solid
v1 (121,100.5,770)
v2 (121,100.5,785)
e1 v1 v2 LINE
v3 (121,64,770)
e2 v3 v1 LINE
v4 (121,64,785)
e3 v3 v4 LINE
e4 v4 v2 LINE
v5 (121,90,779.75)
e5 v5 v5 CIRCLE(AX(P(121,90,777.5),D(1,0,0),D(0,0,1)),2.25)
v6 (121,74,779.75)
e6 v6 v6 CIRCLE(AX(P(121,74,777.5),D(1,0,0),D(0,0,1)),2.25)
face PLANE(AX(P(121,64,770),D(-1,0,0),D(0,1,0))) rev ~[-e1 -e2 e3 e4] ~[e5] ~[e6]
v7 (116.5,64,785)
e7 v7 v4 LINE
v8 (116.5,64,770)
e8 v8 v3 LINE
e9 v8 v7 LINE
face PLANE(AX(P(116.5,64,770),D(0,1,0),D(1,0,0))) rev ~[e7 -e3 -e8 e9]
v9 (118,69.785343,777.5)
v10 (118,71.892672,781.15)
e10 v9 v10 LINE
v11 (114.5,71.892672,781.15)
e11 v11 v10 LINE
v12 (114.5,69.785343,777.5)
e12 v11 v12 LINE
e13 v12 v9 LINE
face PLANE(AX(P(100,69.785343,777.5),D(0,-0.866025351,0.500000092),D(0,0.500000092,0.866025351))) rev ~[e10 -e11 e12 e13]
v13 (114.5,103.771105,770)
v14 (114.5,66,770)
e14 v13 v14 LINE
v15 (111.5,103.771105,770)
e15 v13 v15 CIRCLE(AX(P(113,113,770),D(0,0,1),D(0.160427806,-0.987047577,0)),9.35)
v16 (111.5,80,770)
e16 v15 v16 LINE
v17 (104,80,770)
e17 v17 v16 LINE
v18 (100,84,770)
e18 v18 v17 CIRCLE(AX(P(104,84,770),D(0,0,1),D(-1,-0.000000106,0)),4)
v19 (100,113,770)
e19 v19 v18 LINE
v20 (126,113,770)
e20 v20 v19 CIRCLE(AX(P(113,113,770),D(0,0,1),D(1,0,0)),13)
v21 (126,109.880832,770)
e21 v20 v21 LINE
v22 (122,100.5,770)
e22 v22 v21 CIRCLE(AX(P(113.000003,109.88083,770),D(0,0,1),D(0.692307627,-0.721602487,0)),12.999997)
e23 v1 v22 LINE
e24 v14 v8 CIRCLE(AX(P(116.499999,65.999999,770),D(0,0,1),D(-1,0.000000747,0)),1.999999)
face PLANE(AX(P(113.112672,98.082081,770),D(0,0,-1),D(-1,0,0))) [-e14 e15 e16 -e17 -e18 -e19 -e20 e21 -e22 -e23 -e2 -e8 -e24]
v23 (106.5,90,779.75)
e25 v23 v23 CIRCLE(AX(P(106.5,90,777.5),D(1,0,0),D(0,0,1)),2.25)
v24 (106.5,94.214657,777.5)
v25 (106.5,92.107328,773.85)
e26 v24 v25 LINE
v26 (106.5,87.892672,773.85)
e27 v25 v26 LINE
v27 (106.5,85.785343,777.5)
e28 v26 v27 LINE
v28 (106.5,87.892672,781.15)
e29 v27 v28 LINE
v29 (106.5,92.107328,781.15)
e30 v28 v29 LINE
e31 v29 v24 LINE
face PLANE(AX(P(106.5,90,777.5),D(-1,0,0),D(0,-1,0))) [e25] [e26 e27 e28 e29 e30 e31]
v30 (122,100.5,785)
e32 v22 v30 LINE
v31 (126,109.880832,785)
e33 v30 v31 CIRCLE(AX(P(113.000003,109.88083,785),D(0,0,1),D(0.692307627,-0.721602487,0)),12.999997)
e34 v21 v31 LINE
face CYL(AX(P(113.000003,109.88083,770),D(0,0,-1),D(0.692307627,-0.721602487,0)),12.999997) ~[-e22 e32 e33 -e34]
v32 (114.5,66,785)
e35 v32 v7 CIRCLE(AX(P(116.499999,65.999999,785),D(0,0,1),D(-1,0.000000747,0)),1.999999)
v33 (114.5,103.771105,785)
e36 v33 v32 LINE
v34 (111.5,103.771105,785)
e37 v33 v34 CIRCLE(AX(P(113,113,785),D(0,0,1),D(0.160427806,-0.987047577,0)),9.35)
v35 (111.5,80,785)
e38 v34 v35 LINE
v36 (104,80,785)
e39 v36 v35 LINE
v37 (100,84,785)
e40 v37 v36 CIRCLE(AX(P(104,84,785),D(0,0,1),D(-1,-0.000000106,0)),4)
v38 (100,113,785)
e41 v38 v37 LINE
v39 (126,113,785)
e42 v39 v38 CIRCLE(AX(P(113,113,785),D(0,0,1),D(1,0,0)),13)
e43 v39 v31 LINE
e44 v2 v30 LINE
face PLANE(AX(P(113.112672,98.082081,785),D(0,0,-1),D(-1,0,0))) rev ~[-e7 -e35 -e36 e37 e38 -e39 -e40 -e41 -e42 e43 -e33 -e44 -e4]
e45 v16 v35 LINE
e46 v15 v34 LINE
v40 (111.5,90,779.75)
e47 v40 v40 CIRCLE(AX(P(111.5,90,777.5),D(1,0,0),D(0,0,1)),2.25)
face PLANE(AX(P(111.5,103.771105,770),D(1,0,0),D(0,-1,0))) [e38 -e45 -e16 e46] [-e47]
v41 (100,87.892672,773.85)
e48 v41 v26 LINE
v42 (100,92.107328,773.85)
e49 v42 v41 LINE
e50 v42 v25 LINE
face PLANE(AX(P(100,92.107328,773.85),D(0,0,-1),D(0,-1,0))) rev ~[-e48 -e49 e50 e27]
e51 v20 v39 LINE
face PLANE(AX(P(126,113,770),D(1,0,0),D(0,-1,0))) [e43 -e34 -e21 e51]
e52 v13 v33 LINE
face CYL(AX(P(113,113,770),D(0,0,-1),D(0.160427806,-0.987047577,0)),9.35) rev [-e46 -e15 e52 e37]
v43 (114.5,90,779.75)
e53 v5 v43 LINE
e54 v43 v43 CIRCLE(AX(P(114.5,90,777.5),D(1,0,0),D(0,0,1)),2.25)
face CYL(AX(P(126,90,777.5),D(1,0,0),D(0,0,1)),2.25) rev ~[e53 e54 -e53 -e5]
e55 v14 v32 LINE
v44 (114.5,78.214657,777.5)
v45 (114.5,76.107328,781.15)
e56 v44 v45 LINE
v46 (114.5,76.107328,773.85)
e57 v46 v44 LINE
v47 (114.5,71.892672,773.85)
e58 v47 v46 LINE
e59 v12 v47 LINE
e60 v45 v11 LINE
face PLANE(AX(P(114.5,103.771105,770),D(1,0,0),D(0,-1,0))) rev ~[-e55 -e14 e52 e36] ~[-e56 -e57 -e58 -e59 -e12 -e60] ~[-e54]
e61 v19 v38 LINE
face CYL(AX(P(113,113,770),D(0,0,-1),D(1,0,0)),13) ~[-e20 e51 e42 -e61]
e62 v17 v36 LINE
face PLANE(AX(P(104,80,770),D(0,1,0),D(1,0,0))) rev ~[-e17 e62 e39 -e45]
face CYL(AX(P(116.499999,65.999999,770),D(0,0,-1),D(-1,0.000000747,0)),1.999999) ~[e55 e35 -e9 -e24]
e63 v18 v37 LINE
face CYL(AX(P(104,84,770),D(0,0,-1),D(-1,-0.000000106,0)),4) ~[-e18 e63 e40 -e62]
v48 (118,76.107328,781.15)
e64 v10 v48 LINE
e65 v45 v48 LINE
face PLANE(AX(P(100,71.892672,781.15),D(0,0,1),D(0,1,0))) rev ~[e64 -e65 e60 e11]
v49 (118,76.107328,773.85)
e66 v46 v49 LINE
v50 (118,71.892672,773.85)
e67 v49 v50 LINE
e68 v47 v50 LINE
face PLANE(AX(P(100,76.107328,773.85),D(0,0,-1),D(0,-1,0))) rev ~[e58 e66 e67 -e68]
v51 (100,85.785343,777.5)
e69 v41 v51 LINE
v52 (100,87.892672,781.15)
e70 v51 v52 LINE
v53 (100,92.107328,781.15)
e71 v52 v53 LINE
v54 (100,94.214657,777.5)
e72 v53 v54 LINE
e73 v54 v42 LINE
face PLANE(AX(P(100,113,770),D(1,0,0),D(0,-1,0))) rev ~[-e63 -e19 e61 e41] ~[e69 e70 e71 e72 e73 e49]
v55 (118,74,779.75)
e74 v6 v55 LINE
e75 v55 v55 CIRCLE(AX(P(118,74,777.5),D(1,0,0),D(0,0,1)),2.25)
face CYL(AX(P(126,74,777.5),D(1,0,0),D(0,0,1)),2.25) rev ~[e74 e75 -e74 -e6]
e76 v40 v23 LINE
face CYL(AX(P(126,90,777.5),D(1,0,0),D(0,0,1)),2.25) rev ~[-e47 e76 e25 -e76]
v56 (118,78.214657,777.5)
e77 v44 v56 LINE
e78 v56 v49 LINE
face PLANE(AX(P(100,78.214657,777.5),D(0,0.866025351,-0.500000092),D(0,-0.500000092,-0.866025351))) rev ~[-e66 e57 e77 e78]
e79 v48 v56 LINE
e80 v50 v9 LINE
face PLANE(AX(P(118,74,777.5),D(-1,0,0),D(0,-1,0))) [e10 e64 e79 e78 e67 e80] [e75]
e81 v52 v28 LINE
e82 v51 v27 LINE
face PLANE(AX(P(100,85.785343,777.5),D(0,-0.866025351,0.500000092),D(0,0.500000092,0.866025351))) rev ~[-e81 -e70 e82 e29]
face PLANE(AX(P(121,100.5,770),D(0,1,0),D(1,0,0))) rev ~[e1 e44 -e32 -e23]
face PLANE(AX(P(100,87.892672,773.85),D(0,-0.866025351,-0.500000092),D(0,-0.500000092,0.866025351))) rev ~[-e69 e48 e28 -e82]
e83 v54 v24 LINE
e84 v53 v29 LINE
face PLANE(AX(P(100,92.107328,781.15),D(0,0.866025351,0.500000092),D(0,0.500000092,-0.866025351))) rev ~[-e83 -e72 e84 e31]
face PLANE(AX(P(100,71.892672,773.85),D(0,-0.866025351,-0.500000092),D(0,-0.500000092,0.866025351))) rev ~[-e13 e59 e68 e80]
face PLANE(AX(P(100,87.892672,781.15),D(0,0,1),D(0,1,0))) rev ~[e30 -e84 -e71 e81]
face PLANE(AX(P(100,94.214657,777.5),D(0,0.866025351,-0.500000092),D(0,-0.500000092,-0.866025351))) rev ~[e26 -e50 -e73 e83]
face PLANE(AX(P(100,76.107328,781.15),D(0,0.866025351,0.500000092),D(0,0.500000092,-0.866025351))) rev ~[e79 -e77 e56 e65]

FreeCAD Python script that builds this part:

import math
import FreeCAD as App
import Part
import Sketcher
Q = App.Units.Quantity


def add_polygon(sketch, points):
    """Adds a closed chain of lines whose ends are joined by coincident constraints."""
    first, n = sketch.GeometryCount, len(points)
    for a, b in zip(points, points[1:] + points[:1]):
        sketch.addGeometry(Part.LineSegment(App.Vector(*a, 0), App.Vector(*b, 0)), False)
    for i in range(n):
        sketch.addConstraint(Sketcher.Constraint("Coincident", first + i, 2, first + (i + 1) % n, 1))

doc = App.newDocument("Part")
params = doc.addObject("Spreadsheet::Sheet", "Params")
for row, (alias, value) in enumerate([
    ("sketch1_radius", "1.999999 mm"),
    ("sketch1_radius2", "13 mm"),
    ("sketch1_radius3", "4 mm"),
    ("sketch1_width", "1 mm"),
    ("sketch1_height", "29 mm"),
    ("pad1_length", "15 mm"),
    ("sketch2_diameter", "4.5 mm"),
    ("pocket2_length", "18 mm"),
    ("pocket3_length", "6.5 mm"),
], start=1):
    params.set(f"A{row}", alias)
    params.set(f"B{row}", "=" + value)
    params.setAlias(f"B{row}", alias)

body = doc.addObject("PartDesign::Body", "Body")

# Sketch on XY plane
sketch1 = body.newObject("Sketcher::SketchObject", "Sketch")
sketch1.AttachmentSupport = (doc.getObject("XY_Plane"), [""])
sketch1.MapMode = "FlatFace"
sketch1.addGeometry(Part.ArcOfCircle(Part.Circle(App.Vector(115.5, 113, 0), App.Vector(0, 0, 1), 9.4), math.radians(-81), math.radians(261)), False)
sketch1.addGeometry(Part.LineSegment(App.Vector(117, 103.8, 0), App.Vector(117, 66, 0)), False)
sketch1.addGeometry(Part.ArcOfCircle(Part.Circle(App.Vector(119, 66, 0), App.Vector(0, 0, 1), 2), math.radians(180), math.radians(270)), False)
sketch1.addGeometry(Part.LineSegment(App.Vector(119, 64, 0), App.Vector(123.5, 64, 0)), False)
sketch1.addGeometry(Part.LineSegment(App.Vector(123.5, 64, 0), App.Vector(123.5, 100.5, 0)), False)
sketch1.addGeometry(Part.LineSegment(App.Vector(123.5, 100.5, 0), App.Vector(124.5, 100.5, 0)), False)
sketch1.addGeometry(Part.ArcOfCircle(Part.Circle(App.Vector(115.5, 109.9, 0), App.Vector(0, 0, 1), 13), math.radians(-46), math.radians(0)), False)
sketch1.addGeometry(Part.LineSegment(App.Vector(128.5, 109.9, 0), App.Vector(128.5, 113, 0)), False)
sketch1.addGeometry(Part.ArcOfCircle(Part.Circle(App.Vector(115.5, 113, 0), App.Vector(0, 0, 1), 13), math.radians(0), math.radians(180)), False)
sketch1.addGeometry(Part.LineSegment(App.Vector(102.5, 113, 0), App.Vector(102.5, 84, 0)), False)
sketch1.addGeometry(Part.ArcOfCircle(Part.Circle(App.Vector(106.5, 84, 0), App.Vector(0, 0, 1), 4), math.radians(-180), math.radians(-90)), False)
sketch1.addGeometry(Part.LineSegment(App.Vector(106.5, 80, 0), App.Vector(114, 80, 0)), False)
sketch1.addGeometry(Part.LineSegment(App.Vector(114, 80, 0), App.Vector(114, 103.8, 0)), False)
sketch1.addConstraint(Sketcher.Constraint("Coincident", 0, 1, 1, 1))
sketch1.addConstraint(Sketcher.Constraint("Tangent", 1, 2, 2, 1))
sketch1.addConstraint(Sketcher.Constraint("Tangent", 2, 2, 3, 1))
sketch1.addConstraint(Sketcher.Constraint("Coincident", 3, 2, 4, 1))
sketch1.addConstraint(Sketcher.Constraint("Coincident", 4, 2, 5, 1))
sketch1.addConstraint(Sketcher.Constraint("Coincident", 5, 2, 6, 1))
sketch1.addConstraint(Sketcher.Constraint("Tangent", 6, 2, 7, 1))
sketch1.addConstraint(Sketcher.Constraint("Tangent", 7, 2, 8, 1))
sketch1.addConstraint(Sketcher.Constraint("Tangent", 8, 2, 9, 1))
sketch1.addConstraint(Sketcher.Constraint("Tangent", 9, 2, 10, 1))
sketch1.addConstraint(Sketcher.Constraint("Tangent", 10, 2, 11, 1))
sketch1.addConstraint(Sketcher.Constraint("Coincident", 11, 2, 12, 1))
sketch1.addConstraint(Sketcher.Constraint("Coincident", 12, 2, 0, 2))
sketch1.addConstraint(Sketcher.Constraint("Vertical", 1))
sketch1.addConstraint(Sketcher.Constraint("Horizontal", 3))
sketch1.addConstraint(Sketcher.Constraint("Vertical", 4))
sketch1.addConstraint(Sketcher.Constraint("Horizontal", 5))
sketch1.addConstraint(Sketcher.Constraint("Vertical", 7))
sketch1.addConstraint(Sketcher.Constraint("Vertical", 9))
sketch1.addConstraint(Sketcher.Constraint("Horizontal", 11))
sketch1.addConstraint(Sketcher.Constraint("Vertical", 12))
sketch1.addConstraint(Sketcher.Constraint("Coincident", 8, 3, 0, 3))
sketch1.addConstraint(Sketcher.Constraint("Horizontal", 0, 1, 12, 2))
sketch1.addConstraint(Sketcher.Constraint("Radius", 2, 1.999999))
sketch1.addConstraint(Sketcher.Constraint("Radius", 8, 13.0))
sketch1.addConstraint(Sketcher.Constraint("Radius", 10, 4.0))
sketch1.addConstraint(Sketcher.Constraint("DistanceX", 5, 1, 5, 2, 1.0))
sketch1.addConstraint(Sketcher.Constraint("DistanceY", 9, 2, 9, 1, 29.0))
sketch1.addConstraint(Sketcher.Constraint("Radius", 0, 9.35))
sketch1.addConstraint(Sketcher.Constraint("DistanceX", 3, 1, 3, 2, 4.5))
sketch1.addConstraint(Sketcher.Constraint("DistanceX", 11, 1, 11, 2, 7.5))
sketch1.addConstraint(Sketcher.Constraint("DistanceY", 4, 1, 4, 2, 36.5))
sketch1.addConstraint(Sketcher.Constraint("DistanceY", -1, 1, 0, 3, 113.0))
sketch1.addConstraint(Sketcher.Constraint("DistanceX", -1, 1, 2, 3, 118.999999))
sketch1.addConstraint(Sketcher.Constraint("DistanceY", -1, 1, 2, 3, 65.999999))
sketch1.addConstraint(Sketcher.Constraint("Radius", 6, 12.999997))
sketch1.setExpression("Constraints[23]", "Params.sketch1_radius")
sketch1.setExpression("Constraints[24]", "Params.sketch1_radius2")
sketch1.setExpression("Constraints[25]", "Params.sketch1_radius3")
sketch1.setExpression("Constraints[26]", "Params.sketch1_width")
sketch1.setExpression("Constraints[27]", "Params.sketch1_height")
pad1 = body.newObject("PartDesign::Pad", "Pad")
pad1.Profile = sketch1
pad1.setExpression("Length", "Params.pad1_length")

# Sketch on YZ plane
sketch2 = body.newObject("Sketcher::SketchObject", "Sketch001")
sketch2.AttachmentSupport = (doc.getObject("YZ_Plane"), [""])
sketch2.MapMode = "FlatFace"
sketch2.AttachmentOffset = App.Placement(App.Vector(0, 0, 128.5), App.Rotation())
sketch2.addGeometry(Part.Circle(App.Vector(90, 7.5, 0), App.Vector(0, 0, 1), 2.2), False)
sketch2.addGeometry(Part.Circle(App.Vector(74, 7.5, 0), App.Vector(0, 0, 1), 2.2), False)
sketch2.addConstraint(Sketcher.Constraint("Equal", 0, 1))
sketch2.addConstraint(Sketcher.Constraint("Horizontal", 0, 3, 1, 3))
sketch2.addConstraint(Sketcher.Constraint("Diameter", 0, 4.5))
sketch2.addConstraint(Sketcher.Constraint("DistanceX", -1, 1, 0, 3, 90.0))
sketch2.addConstraint(Sketcher.Constraint("DistanceX", -1, 1, 1, 3, 74.0))
sketch2.addConstraint(Sketcher.Constraint("DistanceY", -1, 1, 0, 3, 7.5))
sketch2.setExpression("Constraints[2]", "Params.sketch2_diameter")
pocket1 = body.newObject("PartDesign::Pocket", "Pocket")
pocket1.Profile = sketch2
pocket1.Type = "ThroughAll"

# Sketch on YZ plane
sketch3 = body.newObject("Sketcher::SketchObject", "Sketch002")
sketch3.AttachmentSupport = (doc.getObject("YZ_Plane"), [""])
sketch3.MapMode = "FlatFace"
sketch3.AttachmentOffset = App.Placement(App.Vector(0, 0, 102.5), App.Rotation())
add_polygon(sketch3, [(69.8, 7.5), (71.9, 11.2), (76.1, 11.2), (78.2, 7.5), (76.1, 3.9), (71.9, 3.9)])  # lines 0-5
sketch3.addConstraint(Sketcher.Constraint("Horizontal", 1))
sketch3.addConstraint(Sketcher.Constraint("Horizontal", 4))
sketch3.addConstraint(Sketcher.Constraint("Parallel", 0, 3))
sketch3.addConstraint(Sketcher.Constraint("Parallel", 2, 5))
sketch3.addConstraint(Sketcher.Constraint("Horizontal", 2, 2, 5, 2))
sketch3.addConstraint(Sketcher.Constraint("Vertical", 1, 2, 3, 2))
sketch3.addConstraint(Sketcher.Constraint("Vertical", 0, 2, 4, 2))
sketch3.addConstraint(Sketcher.Constraint("Angle", 0, Q("59.999994 deg")))
sketch3.addConstraint(Sketcher.Constraint("DistanceY", -1, 1, 2, 2, 7.5))
sketch3.addConstraint(Sketcher.Constraint("DistanceY", 3, 2, 1, 2, 7.3))
sketch3.addConstraint(Sketcher.Constraint("DistanceX", 1, 1, 1, 2, 4.214656))
sketch3.addConstraint(Sketcher.Constraint("DistanceX", -1, 1, 0, 2, 71.892672))
pocket2 = body.newObject("PartDesign::Pocket", "Pocket001")
pocket2.Profile = sketch3
pocket2.setExpression("Length", "Params.pocket2_length")
pocket2.Reversed = True

# Sketch on YZ plane
sketch4 = body.newObject("Sketcher::SketchObject", "Sketch003")
sketch4.AttachmentSupport = (doc.getObject("YZ_Plane"), [""])
sketch4.MapMode = "FlatFace"
sketch4.AttachmentOffset = App.Placement(App.Vector(0, 0, 102.5), App.Rotation())
add_polygon(sketch4, [(85.8, 7.5), (87.9, 11.2), (92.1, 11.2), (94.2, 7.5), (92.1, 3.9), (87.9, 3.9)])  # lines 0-5
sketch4.addConstraint(Sketcher.Constraint("Horizontal", 1))
sketch4.addConstraint(Sketcher.Constraint("Horizontal", 4))
sketch4.addConstraint(Sketcher.Constraint("Parallel", 0, 3))
sketch4.addConstraint(Sketcher.Constraint("Parallel", 2, 5))
sketch4.addConstraint(Sketcher.Constraint("Horizontal", 2, 2, 5, 2))
sketch4.addConstraint(Sketcher.Constraint("Vertical", 1, 2, 3, 2))
sketch4.addConstraint(Sketcher.Constraint("Vertical", 0, 2, 4, 2))
sketch4.addConstraint(Sketcher.Constraint("Angle", 0, Q("59.999994 deg")))
sketch4.addConstraint(Sketcher.Constraint("DistanceY", -1, 1, 2, 2, 7.5))
sketch4.addConstraint(Sketcher.Constraint("DistanceY", 3, 2, 1, 2, 7.3))
sketch4.addConstraint(Sketcher.Constraint("DistanceX", 1, 1, 1, 2, 4.214656))
sketch4.addConstraint(Sketcher.Constraint("DistanceX", -1, 1, 0, 2, 87.892672))
pocket3 = body.newObject("PartDesign::Pocket", "Pocket002")
pocket3.Profile = sketch4
pocket3.setExpression("Length", "Params.pocket3_length")
pocket3.Reversed = True
body2 = doc.addObject("PartDesign::Body", "Body001")
doc.recompute()

body.Placement = App.Placement(App.Vector(-2.5, 0, 770), App.Rotation(App.Vector(0, 0, 1), 0))
boolean = body2.newObject("PartDesign::Boolean", "Boolean")
boolean.Type = "Fuse"
boolean.addObjects([body])

doc.recompute()
